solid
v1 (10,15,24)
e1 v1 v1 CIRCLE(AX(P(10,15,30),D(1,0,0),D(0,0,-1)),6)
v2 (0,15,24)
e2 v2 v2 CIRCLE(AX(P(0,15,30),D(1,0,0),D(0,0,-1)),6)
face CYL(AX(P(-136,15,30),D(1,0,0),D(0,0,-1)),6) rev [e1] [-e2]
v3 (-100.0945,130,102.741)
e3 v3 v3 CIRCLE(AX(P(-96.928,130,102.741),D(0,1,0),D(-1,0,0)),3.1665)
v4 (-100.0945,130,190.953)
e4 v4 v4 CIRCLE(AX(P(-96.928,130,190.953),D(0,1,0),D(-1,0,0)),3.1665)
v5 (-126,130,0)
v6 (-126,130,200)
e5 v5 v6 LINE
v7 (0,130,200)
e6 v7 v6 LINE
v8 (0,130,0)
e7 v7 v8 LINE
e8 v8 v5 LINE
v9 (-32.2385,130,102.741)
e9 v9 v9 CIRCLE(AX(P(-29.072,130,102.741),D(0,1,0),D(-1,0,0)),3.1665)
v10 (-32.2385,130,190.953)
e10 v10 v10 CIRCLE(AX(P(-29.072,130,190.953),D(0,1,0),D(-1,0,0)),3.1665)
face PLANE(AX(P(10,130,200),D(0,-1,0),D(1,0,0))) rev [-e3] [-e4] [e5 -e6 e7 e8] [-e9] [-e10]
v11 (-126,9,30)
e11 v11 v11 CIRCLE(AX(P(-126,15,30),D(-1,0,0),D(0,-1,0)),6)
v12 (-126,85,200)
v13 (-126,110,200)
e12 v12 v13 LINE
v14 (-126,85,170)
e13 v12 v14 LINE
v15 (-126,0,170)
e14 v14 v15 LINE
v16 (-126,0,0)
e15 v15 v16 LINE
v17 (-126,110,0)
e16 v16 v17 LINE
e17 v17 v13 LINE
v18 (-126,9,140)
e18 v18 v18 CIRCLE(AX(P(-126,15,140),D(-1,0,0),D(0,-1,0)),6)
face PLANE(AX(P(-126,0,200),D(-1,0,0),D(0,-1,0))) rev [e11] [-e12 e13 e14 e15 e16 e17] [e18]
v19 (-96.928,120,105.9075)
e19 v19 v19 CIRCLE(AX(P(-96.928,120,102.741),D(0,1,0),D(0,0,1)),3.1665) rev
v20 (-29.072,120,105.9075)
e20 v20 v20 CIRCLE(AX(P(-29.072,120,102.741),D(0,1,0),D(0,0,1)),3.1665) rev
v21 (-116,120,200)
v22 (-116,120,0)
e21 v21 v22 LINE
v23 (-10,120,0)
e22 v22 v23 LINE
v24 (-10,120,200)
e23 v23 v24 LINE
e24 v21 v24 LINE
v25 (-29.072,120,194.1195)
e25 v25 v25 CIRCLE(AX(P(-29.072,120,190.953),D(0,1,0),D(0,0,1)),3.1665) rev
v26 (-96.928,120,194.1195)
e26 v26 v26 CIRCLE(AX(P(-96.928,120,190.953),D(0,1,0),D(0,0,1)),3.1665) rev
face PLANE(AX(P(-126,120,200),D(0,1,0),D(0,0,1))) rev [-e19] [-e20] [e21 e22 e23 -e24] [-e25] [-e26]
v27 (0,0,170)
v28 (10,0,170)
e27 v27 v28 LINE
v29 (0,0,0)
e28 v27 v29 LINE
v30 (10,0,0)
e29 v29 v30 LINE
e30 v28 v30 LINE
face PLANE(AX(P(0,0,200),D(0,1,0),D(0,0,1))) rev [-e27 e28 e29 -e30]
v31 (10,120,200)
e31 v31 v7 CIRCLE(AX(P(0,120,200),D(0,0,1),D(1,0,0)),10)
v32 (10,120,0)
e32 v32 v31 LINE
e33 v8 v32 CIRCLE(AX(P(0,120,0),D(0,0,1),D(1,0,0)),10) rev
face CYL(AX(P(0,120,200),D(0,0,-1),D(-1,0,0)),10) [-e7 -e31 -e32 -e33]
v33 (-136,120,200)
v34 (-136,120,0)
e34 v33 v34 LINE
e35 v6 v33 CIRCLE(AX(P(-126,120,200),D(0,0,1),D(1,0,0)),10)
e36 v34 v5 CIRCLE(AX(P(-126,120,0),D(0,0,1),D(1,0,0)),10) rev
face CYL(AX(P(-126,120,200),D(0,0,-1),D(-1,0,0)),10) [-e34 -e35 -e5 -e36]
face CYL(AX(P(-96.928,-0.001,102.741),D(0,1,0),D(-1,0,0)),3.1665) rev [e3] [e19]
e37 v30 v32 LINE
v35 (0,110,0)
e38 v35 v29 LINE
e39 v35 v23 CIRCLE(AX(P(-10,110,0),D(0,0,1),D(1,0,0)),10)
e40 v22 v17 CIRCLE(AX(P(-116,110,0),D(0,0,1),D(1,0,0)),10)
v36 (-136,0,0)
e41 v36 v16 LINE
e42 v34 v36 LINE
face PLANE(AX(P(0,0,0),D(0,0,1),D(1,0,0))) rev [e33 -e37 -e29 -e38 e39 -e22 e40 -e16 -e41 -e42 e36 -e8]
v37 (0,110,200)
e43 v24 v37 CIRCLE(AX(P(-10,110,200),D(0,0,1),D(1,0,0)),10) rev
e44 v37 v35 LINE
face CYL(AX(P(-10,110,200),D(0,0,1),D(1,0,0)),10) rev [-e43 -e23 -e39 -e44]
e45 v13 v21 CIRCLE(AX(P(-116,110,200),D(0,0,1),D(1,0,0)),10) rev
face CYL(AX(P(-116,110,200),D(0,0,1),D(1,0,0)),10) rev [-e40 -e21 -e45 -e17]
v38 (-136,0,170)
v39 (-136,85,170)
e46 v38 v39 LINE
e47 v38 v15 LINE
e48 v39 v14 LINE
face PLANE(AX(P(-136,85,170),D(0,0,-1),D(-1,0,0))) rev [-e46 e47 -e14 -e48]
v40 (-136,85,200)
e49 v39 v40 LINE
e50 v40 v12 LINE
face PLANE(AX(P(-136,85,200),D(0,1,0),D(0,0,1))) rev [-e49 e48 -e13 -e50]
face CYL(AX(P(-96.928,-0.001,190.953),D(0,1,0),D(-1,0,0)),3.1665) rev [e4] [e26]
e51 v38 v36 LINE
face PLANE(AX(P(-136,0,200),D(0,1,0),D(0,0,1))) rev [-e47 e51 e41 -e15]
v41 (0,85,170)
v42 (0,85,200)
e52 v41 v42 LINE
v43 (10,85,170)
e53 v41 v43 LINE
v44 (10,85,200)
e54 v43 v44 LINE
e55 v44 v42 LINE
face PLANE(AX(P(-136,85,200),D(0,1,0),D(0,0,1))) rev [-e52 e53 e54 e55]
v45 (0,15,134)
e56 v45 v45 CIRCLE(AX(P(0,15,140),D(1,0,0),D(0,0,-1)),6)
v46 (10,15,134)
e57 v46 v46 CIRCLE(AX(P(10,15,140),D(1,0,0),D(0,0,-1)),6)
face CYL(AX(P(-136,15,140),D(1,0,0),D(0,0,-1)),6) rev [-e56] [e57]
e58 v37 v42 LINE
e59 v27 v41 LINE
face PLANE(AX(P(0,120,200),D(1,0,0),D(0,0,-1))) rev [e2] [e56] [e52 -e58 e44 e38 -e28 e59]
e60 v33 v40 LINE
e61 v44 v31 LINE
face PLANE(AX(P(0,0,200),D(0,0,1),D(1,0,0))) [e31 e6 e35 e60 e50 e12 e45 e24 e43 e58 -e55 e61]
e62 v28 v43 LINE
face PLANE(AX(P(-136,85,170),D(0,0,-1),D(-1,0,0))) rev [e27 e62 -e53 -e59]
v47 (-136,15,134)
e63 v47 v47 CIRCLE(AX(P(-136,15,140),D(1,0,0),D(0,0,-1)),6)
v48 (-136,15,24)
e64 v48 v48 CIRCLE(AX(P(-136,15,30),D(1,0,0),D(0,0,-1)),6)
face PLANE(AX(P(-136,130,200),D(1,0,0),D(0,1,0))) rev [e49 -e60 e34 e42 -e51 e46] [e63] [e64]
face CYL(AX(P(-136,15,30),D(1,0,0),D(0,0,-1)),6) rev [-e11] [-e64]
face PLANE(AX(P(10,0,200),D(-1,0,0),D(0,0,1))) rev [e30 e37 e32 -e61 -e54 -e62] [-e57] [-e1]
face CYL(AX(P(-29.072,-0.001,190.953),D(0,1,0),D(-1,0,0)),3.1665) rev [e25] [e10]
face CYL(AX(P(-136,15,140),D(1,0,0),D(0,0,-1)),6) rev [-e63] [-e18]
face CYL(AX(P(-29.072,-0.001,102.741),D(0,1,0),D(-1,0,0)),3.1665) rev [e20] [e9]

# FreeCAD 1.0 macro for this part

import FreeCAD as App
import Part
import Sketcher
Q = App.Units.Quantity


def edges_at(feature, points):
    """Names of the edges that pass closest to the given points."""
    edges = feature.Shape.Edges
    near = lambda p: min(range(len(edges)), key=lambda i: edges[i].distToShape(Part.Vertex(*p))[0])
    return sorted({f"Edge{near(p) + 1}" for p in points})


def add_polygon(sketch, points):
    """Adds a closed chain of lines whose ends are joined by coincident constraints."""
    first, n = sketch.GeometryCount, len(points)
    for a, b in zip(points, points[1:] + points[:1]):
        sketch.addGeometry(Part.LineSegment(App.Vector(*a, 0), App.Vector(*b, 0)), False)
    for i in range(n):
        sketch.addConstraint(Sketcher.Constraint("Coincident", first + i, 2, first + (i + 1) % n, 1))

doc = App.newDocument("Part")
params = doc.addObject("Spreadsheet::Sheet", "Params")
for row, (alias, value) in enumerate([
    ("sketch1_width", "10 mm"),
    ("sketch1_width2", "126 mm"),
    ("sketch1_height", "120 mm"),
    ("sketch1_height2", "130 mm"),
    ("pad1_length", "200 mm"),
    ("fillet_radius", "10 mm"),
    ("sketch2_diameter", "12 mm"),
    ("sketch3_width", "85 mm"),
    ("sketch3_height", "30 mm"),
], start=1):
    params.set(f"A{row}", alias)
    params.set(f"B{row}", "=" + value)
    params.setAlias(f"B{row}", alias)

body = doc.addObject("PartDesign::Body", "Body")

# Sketch on XY plane
sketch1 = doc.addObject("Sketcher::SketchObject", "Sketch")
body.addObject(sketch1)
sketch1.AttachmentSupport = (doc.XY_Plane, [""])
sketch1.MapMode = "FlatFace"
add_polygon(sketch1, [(-136, 0), (-126, 0), (-126, 120), (0, 120), (0, 0), (10, 0), (10, 130), (-136, 130)])  # lines 0-7
sketch1.addConstraint([
    Sketcher.Constraint("Horizontal", 0),
    Sketcher.Constraint("Vertical", 1),
    Sketcher.Constraint("Horizontal", 2),
    Sketcher.Constraint("Vertical", 3),
    Sketcher.Constraint("Horizontal", 4),
    Sketcher.Constraint("Vertical", 5),
    Sketcher.Constraint("Horizontal", 6),
    Sketcher.Constraint("Vertical", 7),
    Sketcher.Constraint("Coincident", 3, 2, -1, 1),
    Sketcher.Constraint("PointOnObject", 0, 2, -1),
    Sketcher.Constraint("Equal", 0, 4),
    Sketcher.Constraint("DistanceX", 0, 1, 0, 2, Q("10 mm")),
    Sketcher.Constraint("DistanceX", 2, 1, 2, 2, Q("126 mm")),
    Sketcher.Constraint("DistanceY", 1, 1, 1, 2, Q("120 mm")),
    Sketcher.Constraint("DistanceY", 5, 1, 5, 2, Q("130 mm")),
])
sketch1.setExpression("Constraints[19]", "Params.sketch1_width")
sketch1.setExpression("Constraints[20]", "Params.sketch1_width2")
sketch1.setExpression("Constraints[21]", "Params.sketch1_height")
sketch1.setExpression("Constraints[22]", "Params.sketch1_height2")
pad1 = doc.addObject("PartDesign::Pad", "Pad")
body.addObject(pad1)
pad1.Profile = sketch1
pad1.setExpression("Length", "Params.pad1_length")
doc.recompute()

fillet = doc.addObject("PartDesign::Fillet", "Fillet")
body.addObject(fillet)
fillet.Base = (pad1, edges_at(pad1, [
    (-136, 130, 100),
    (10, 130, 100),
    (0, 120, 100),
    (-126, 120, 100),
]))
fillet.setExpression("Radius", "Params.fillet_radius")

# Sketch on YZ plane
sketch2 = doc.addObject("Sketcher::SketchObject", "Sketch001")
body.addObject(sketch2)
sketch2.AttachmentSupport = (doc.YZ_Plane, [""])
sketch2.MapMode = "FlatFace"
sketch2.AttachmentOffset = App.Placement(App.Vector(0, 0, 10), App.Rotation())
sketch2.addGeometry([
    Part.Circle(App.Vector(15, 140, 0), App.Vector(0, 0, 1), 6),
    Part.Circle(App.Vector(15, 30, 0), App.Vector(0, 0, 1), 6),
], False)
sketch2.addConstraint([
    Sketcher.Constraint("Equal", 0, 1),
    Sketcher.Constraint("Vertical", 0, 3, 1, 3),
    Sketcher.Constraint("Diameter", 0, Q("12 mm")),
    Sketcher.Constraint("DistanceX", -1, 1, 0, 3, Q("15 mm")),
    Sketcher.Constraint("DistanceY", -1, 1, 0, 3, Q("140 mm")),
    Sketcher.Constraint("DistanceY", -1, 1, 1, 3, Q("30 mm")),
])
sketch2.setExpression("Constraints[2]", "Params.sketch2_diameter")
pocket1 = doc.addObject("PartDesign::Pocket", "Pocket")
body.addObject(pocket1)
pocket1.Profile = sketch2
pocket1.Type = "ThroughAll"

# Sketch on YZ plane
sketch3 = doc.addObject("Sketcher::SketchObject", "Sketch002")
body.addObject(sketch3)
sketch3.AttachmentSupport = (doc.YZ_Plane, [""])
sketch3.MapMode = "FlatFace"
sketch3.AttachmentOffset = App.Placement(App.Vector(0, 0, 10), App.Rotation())
add_polygon(sketch3, [(85, 200), (0, 200), (0, 170), (85, 170)])  # lines 0-3
sketch3.addConstraint([
    Sketcher.Constraint("Horizontal", 0),
    Sketcher.Constraint("Vertical", 1),
    Sketcher.Constraint("Horizontal", 2),
    Sketcher.Constraint("Vertical", 3),
    Sketcher.Constraint("PointOnObject", 0, 2, -2),
    Sketcher.Constraint("DistanceX", 0, 2, 0, 1, Q("85 mm")),
    Sketcher.Constraint("DistanceY", 1, 2, 1, 1, Q("30 mm")),
    Sketcher.Constraint("DistanceY", -1, 1, 0, 2, Q("200 mm")),
])
sketch3.setExpression("Constraints[9]", "Params.sketch3_width")
sketch3.setExpression("Constraints[10]", "Params.sketch3_height")
pocket2 = doc.addObject("PartDesign::Pocket", "Pocket001")
body.addObject(pocket2)
pocket2.Profile = sketch3
pocket2.Type = "ThroughAll"

# Sketch on XZ plane
sketch4 = doc.addObject("Sketcher::SketchObject", "Sketch003")
body.addObject(sketch4)
sketch4.AttachmentSupport = (doc.XZ_Plane, [""])
sketch4.MapMode = "FlatFace"
sketch4.AttachmentOffset = App.Placement(App.Vector(0, 0, -130), App.Rotation())
sketch4.addGeometry(Part.Circle(App.Vector(-96.9, 191, 0), App.Vector(0, 0, 1), 3.2), False)
sketch4.addConstraint([
    Sketcher.Constraint("Diameter", 0, Q("6.333 mm")),
    Sketcher.Constraint("DistanceX", 0, 3, -1, 1, Q("96.928 mm")),
    Sketcher.Constraint("DistanceY", -1, 1, 0, 3, Q("190.953 mm")),
])
pocket3 = doc.addObject("PartDesign::Pocket", "Pocket002")
body.addObject(pocket3)
pocket3.Profile = sketch4
pocket3.Type = "UpToFirst"
pocket3.Reversed = True

# Sketch on XZ plane
sketch5 = doc.addObject("Sketcher::SketchObject", "Sketch004")
body.addObject(sketch5)
sketch5.AttachmentSupport = (doc.XZ_Plane, [""])
sketch5.MapMode = "FlatFace"
sketch5.AttachmentOffset = App.Placement(App.Vector(0, 0, -130), App.Rotation())
sketch5.addGeometry(Part.Circle(App.Vector(-29.1, 191, 0), App.Vector(0, 0, 1), 3.2), False)
sketch5.addConstraint([
    Sketcher.Constraint("Diameter", 0, Q("6.333 mm")),
    Sketcher.Constraint("DistanceX", 0, 3, -1, 1, Q("29.072 mm")),
    Sketcher.Constraint("DistanceY", -1, 1, 0, 3, Q("190.953 mm")),
])
pocket4 = doc.addObject("PartDesign::Pocket", "Pocket003")
body.addObject(pocket4)
pocket4.Profile = sketch5
pocket4.Type = "UpToFirst"
pocket4.Reversed = True

# Sketch on XZ plane
sketch6 = doc.addObject("Sketcher::SketchObject", "Sketch005")
body.addObject(sketch6)
sketch6.AttachmentSupport = (doc.XZ_Plane, [""])
sketch6.MapMode = "FlatFace"
sketch6.AttachmentOffset = App.Placement(App.Vector(0, 0, -130), App.Rotation())
sketch6.addGeometry(Part.Circle(App.Vector(-96.9, 102.7, 0), App.Vector(0, 0, 1), 3.2), False)
sketch6.addConstraint([
    Sketcher.Constraint("Diameter", 0, Q("6.333 mm")),
    Sketcher.Constraint("DistanceX", 0, 3, -1, 1, Q("96.928 mm")),
    Sketcher.Constraint("DistanceY", -1, 1, 0, 3, Q("102.741 mm")),
])
pocket5 = doc.addObject("PartDesign::Pocket", "Pocket004")
body.addObject(pocket5)
pocket5.Profile = sketch6
pocket5.Type = "UpToFirst"
pocket5.Reversed = True

# Sketch on XZ plane
sketch7 = doc.addObject("Sketcher::SketchObject", "Sketch006")
body.addObject(sketch7)
sketch7.AttachmentSupport = (doc.XZ_Plane, [""])
sketch7.MapMode = "FlatFace"
sketch7.AttachmentOffset = App.Placement(App.Vector(0, 0, -130), App.Rotation())
sketch7.addGeometry(Part.Circle(App.Vector(-29.1, 102.7, 0), App.Vector(0, 0, 1), 3.2), False)
sketch7.addConstraint([
    Sketcher.Constraint("Diameter", 0, Q("6.333 mm")),
    Sketcher.Constraint("DistanceX", 0, 3, -1, 1, Q("29.072 mm")),
    Sketcher.Constraint("DistanceY", -1, 1, 0, 3, Q("102.741 mm")),
])
pocket6 = doc.addObject("PartDesign::Pocket", "Pocket005")
body.addObject(pocket6)
pocket6.Profile = sketch7
pocket6.Type = "UpToFirst"
pocket6.Reversed = True

doc.recompute()
